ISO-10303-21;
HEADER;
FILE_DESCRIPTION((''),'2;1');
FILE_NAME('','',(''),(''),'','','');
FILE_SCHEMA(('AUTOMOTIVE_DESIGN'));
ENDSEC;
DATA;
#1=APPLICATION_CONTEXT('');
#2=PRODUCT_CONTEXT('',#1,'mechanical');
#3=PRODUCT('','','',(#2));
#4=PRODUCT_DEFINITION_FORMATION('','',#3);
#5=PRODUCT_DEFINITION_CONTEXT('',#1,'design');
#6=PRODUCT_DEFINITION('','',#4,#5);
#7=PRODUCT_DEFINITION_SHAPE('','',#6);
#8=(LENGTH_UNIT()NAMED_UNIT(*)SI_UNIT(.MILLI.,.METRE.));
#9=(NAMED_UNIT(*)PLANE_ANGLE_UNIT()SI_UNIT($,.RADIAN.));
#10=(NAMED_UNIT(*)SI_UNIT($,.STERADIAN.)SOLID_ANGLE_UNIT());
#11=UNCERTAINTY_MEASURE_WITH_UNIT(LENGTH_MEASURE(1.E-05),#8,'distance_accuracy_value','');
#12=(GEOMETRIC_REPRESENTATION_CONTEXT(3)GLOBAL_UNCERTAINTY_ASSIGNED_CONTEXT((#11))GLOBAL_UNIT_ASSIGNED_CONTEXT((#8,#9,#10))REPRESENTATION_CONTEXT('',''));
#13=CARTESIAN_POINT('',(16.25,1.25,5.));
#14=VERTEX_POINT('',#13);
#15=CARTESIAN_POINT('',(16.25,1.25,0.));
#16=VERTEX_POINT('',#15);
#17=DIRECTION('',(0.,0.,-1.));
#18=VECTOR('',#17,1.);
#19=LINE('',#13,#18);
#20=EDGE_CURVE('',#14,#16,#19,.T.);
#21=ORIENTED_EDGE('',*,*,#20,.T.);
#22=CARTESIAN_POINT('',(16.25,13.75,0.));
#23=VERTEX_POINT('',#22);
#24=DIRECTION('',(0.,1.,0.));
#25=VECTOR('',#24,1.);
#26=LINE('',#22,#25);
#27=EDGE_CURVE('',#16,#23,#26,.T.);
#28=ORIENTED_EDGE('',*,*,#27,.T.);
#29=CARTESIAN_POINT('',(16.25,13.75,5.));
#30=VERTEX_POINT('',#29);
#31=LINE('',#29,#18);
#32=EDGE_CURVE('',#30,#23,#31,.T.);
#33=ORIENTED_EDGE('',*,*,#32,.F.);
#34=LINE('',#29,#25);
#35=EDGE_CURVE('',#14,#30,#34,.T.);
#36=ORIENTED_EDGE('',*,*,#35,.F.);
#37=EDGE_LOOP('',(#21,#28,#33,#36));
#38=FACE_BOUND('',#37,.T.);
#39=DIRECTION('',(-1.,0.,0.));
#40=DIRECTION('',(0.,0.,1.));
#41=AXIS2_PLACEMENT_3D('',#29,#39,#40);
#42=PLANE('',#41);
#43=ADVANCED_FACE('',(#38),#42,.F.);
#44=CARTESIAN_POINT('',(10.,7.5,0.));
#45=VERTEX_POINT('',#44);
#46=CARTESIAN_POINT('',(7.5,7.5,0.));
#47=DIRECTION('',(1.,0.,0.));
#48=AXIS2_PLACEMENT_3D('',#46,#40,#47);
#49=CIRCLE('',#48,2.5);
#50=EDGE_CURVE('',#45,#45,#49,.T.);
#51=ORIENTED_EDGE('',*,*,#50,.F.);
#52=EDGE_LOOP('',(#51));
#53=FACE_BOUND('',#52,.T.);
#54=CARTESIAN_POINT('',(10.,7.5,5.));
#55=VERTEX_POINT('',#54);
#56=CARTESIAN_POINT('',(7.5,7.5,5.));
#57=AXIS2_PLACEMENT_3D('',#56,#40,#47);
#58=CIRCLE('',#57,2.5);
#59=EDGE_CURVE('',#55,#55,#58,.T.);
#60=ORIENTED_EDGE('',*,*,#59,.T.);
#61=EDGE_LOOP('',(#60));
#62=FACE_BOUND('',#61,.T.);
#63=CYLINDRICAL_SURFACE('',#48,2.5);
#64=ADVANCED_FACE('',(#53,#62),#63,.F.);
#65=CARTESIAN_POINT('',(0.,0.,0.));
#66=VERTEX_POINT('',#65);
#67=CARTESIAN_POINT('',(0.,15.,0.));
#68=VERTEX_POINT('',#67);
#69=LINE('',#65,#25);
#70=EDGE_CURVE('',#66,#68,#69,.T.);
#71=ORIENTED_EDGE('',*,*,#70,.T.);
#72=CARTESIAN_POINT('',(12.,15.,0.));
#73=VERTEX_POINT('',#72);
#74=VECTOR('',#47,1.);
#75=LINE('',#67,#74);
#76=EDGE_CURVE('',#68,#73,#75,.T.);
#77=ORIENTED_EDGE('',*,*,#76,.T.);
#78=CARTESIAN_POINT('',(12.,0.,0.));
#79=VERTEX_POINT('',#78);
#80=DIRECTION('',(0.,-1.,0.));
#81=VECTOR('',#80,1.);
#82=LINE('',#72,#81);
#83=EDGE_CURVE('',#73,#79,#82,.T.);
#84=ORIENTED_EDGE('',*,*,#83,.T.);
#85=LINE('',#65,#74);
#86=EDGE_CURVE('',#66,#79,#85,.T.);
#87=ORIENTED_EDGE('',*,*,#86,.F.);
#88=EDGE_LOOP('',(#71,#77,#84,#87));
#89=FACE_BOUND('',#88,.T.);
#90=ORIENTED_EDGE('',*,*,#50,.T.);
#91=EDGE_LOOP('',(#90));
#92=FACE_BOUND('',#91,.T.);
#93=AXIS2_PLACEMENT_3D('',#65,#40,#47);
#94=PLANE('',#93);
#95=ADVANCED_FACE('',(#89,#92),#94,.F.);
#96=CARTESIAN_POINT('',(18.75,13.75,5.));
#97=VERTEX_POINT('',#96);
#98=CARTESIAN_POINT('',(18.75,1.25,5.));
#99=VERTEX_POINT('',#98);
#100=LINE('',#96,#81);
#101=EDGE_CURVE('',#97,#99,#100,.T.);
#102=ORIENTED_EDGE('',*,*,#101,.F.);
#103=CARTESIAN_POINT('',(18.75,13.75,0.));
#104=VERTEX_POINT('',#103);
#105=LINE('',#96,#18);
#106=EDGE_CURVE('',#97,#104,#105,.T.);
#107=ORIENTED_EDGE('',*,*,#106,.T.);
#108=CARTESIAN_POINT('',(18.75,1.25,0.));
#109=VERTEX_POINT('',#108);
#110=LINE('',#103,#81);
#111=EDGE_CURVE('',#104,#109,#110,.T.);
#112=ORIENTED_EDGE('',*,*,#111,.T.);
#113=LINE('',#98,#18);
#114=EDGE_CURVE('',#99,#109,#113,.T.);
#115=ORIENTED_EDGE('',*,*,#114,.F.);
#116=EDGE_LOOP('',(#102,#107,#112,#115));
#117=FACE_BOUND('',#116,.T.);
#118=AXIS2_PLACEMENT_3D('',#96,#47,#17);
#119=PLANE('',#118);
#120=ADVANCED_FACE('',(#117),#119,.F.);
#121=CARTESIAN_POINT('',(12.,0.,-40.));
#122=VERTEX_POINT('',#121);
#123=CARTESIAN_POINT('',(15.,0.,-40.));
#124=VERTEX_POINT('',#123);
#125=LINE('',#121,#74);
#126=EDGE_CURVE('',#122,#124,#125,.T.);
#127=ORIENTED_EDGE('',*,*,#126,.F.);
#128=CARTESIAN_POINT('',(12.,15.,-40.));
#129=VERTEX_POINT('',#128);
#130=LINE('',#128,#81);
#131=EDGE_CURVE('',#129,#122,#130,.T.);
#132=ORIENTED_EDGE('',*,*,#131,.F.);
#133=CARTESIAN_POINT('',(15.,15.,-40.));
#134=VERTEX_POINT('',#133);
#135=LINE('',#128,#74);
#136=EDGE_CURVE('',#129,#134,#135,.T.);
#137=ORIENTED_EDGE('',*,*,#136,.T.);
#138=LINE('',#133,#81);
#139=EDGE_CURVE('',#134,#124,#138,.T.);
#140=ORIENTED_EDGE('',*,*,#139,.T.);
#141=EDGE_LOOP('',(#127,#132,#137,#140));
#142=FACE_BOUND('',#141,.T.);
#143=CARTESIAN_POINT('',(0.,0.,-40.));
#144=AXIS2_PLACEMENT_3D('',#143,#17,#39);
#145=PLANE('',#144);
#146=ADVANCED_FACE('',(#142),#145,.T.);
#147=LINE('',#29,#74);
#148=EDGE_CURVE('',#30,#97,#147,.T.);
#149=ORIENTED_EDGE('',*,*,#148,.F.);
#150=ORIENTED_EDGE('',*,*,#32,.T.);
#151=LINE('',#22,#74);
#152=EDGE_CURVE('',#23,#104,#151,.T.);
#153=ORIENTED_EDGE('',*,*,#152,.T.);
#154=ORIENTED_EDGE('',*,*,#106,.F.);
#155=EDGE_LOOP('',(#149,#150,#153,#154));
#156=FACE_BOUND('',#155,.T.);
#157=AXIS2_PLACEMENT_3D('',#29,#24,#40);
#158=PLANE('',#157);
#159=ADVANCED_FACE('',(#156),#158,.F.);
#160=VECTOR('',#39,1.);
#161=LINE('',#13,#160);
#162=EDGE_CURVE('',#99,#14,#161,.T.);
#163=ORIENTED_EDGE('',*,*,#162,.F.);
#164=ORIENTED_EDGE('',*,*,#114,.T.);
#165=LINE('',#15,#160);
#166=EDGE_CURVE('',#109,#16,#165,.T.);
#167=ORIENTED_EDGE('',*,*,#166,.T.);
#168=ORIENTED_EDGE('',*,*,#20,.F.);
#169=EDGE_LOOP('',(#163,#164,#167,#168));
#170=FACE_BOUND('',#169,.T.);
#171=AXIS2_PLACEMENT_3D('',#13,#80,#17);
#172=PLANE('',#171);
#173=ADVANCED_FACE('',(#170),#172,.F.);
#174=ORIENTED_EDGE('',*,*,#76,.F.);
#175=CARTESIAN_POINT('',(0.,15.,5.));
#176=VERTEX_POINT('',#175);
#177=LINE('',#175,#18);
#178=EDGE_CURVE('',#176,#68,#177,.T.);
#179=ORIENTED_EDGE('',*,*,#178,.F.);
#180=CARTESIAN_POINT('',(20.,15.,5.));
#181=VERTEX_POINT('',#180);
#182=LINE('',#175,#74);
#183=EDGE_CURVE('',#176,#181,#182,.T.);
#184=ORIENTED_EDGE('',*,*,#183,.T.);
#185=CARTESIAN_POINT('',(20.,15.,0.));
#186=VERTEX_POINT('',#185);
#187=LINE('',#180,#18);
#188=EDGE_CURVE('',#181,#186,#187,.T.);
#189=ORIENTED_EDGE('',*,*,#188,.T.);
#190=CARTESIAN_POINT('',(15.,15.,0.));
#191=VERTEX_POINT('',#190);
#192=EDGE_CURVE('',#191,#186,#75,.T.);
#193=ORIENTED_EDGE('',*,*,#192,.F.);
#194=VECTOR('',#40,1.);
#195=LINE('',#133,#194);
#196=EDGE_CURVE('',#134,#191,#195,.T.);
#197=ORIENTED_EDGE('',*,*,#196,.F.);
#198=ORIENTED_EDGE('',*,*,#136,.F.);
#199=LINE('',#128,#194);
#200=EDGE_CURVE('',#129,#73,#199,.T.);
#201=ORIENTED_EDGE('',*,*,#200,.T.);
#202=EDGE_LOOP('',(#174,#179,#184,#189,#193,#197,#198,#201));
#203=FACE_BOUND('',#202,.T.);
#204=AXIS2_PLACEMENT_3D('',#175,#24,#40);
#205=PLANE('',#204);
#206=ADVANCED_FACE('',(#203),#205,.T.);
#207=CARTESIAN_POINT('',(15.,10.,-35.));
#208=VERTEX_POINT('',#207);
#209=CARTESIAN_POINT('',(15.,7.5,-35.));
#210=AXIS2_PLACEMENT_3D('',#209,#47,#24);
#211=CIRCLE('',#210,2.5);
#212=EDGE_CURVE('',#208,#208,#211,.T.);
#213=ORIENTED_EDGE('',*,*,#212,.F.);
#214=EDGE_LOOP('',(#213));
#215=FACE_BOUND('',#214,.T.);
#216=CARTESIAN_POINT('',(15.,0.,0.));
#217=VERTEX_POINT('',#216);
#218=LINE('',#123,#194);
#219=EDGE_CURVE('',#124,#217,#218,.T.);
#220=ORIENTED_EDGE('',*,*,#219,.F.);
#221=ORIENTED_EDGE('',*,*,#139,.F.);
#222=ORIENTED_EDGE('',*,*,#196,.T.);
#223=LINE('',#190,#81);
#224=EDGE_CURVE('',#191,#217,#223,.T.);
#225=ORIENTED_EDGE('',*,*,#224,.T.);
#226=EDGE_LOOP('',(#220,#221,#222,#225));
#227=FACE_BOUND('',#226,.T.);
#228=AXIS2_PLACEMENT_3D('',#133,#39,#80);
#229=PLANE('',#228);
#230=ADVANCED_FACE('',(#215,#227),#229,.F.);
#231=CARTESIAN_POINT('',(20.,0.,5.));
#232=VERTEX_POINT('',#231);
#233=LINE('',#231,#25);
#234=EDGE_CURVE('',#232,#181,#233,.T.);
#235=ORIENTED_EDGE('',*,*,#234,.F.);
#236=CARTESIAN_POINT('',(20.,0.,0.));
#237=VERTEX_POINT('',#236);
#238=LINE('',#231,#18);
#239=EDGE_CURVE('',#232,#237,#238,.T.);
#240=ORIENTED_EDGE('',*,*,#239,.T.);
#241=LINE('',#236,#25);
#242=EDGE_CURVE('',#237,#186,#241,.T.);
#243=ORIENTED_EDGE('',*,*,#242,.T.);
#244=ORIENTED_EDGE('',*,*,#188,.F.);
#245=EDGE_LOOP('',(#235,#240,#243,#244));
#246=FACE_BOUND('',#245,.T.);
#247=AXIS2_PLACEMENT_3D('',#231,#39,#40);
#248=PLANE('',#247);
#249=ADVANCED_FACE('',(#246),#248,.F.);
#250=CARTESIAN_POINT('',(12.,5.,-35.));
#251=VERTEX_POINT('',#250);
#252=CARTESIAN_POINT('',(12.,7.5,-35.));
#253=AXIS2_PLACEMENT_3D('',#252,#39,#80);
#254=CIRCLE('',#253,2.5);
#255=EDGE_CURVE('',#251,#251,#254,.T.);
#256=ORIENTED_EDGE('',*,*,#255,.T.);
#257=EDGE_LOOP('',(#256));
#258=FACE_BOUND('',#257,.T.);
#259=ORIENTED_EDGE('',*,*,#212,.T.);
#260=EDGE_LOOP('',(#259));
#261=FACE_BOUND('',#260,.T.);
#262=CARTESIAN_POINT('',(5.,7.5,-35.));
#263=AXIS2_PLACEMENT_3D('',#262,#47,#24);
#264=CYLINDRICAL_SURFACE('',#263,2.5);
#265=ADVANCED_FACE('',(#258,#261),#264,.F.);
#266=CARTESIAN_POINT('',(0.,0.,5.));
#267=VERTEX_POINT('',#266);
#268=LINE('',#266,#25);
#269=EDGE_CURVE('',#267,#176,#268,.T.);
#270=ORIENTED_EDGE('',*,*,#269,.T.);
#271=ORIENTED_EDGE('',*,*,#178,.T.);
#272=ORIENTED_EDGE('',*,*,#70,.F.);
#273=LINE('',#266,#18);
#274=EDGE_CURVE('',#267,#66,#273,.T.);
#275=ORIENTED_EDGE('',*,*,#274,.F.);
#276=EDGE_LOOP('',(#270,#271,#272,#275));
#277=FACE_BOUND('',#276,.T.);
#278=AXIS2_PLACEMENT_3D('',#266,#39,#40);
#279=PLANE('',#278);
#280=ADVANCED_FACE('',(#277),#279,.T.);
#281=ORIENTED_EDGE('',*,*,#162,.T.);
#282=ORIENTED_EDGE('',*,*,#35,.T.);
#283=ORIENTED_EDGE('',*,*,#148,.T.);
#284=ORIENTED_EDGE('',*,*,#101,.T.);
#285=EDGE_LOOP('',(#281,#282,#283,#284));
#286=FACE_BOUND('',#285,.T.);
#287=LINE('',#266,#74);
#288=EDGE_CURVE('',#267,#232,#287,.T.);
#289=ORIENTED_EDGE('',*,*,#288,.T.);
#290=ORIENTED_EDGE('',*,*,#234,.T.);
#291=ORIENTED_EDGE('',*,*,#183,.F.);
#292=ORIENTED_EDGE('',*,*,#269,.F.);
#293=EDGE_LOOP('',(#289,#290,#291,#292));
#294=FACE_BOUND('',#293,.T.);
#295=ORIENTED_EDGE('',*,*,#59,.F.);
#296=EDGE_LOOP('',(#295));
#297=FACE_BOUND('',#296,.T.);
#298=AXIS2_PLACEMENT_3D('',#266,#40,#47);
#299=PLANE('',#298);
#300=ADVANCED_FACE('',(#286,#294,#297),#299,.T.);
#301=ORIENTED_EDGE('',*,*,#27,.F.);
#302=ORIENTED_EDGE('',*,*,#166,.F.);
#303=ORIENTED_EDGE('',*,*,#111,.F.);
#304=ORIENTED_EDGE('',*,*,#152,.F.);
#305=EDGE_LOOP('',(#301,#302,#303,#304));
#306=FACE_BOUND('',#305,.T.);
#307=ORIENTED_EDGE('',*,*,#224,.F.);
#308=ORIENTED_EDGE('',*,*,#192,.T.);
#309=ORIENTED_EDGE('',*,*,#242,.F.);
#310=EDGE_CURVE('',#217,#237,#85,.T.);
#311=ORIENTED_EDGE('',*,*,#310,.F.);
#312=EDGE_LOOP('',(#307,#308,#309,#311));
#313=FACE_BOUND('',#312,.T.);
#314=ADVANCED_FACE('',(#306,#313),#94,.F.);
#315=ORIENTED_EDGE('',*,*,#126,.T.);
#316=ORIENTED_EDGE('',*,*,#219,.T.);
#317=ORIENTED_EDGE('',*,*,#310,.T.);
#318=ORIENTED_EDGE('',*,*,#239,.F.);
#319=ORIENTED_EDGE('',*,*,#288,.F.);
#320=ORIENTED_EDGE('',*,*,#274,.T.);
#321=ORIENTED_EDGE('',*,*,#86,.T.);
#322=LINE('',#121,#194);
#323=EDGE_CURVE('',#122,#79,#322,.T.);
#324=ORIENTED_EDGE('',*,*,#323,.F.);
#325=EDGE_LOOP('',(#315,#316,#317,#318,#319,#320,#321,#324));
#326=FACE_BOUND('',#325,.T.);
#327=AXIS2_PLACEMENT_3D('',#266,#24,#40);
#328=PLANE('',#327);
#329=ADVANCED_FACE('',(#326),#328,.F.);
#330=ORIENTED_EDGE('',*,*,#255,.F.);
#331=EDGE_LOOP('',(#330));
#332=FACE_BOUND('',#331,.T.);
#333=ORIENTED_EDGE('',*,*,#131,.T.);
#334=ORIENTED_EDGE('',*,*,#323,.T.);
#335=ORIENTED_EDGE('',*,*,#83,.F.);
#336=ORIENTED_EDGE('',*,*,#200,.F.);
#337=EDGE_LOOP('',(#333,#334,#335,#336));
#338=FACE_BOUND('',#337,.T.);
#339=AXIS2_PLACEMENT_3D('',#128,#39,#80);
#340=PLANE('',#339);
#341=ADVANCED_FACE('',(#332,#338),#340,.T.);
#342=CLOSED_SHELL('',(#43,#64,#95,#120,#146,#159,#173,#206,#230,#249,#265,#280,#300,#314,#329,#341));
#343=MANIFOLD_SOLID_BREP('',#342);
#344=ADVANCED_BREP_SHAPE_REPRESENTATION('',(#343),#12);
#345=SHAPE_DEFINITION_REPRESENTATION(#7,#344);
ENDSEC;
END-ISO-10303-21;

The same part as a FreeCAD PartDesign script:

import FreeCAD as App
import Part
import Sketcher
Q = App.Units.Quantity


def add_polygon(sketch, points):
    """Adds a closed chain of lines whose ends are joined by coincident constraints."""
    first, n = sketch.GeometryCount, len(points)
    for a, b in zip(points, points[1:] + points[:1]):
        sketch.addGeometry(Part.LineSegment(App.Vector(*a, 0), App.Vector(*b, 0)), False)
    for i in range(n):
        sketch.addConstraint(Sketcher.Constraint("Coincident", first + i, 2, first + (i + 1) % n, 1))

doc = App.newDocument("Part")
body = doc.addObject("PartDesign::Body", "Body")

sketch1 = doc.addObject("Sketcher::SketchObject", "Sketch")
body.addObject(sketch1)
sketch1.AttachmentSupport = (doc.XY_Plane, [""])
sketch1.MapMode = "FlatFace"
add_polygon(sketch1, [(0, 15), (0, 0), (20, 0), (20, 15)])
sketch1.addConstraint([
    Sketcher.Constraint("Vertical", 0),
    Sketcher.Constraint("Horizontal", 1),
    Sketcher.Constraint("Vertical", 2),
    Sketcher.Constraint("Horizontal", 3),
    Sketcher.Constraint("Coincident", 0, 2, -1, 1),
    Sketcher.Constraint("DistanceX", 1, 1, 1, 2, Q("20 mm")),
    Sketcher.Constraint("DistanceY", 0, 2, 0, 1, Q("15 mm")),
])
pad1 = doc.addObject("PartDesign::Pad", "Pad")
body.addObject(pad1)
pad1.Profile = sketch1
pad1.Length = 5

sketch2 = doc.addObject("Sketcher::SketchObject", "Sketch001")
body.addObject(sketch2)
sketch2.AttachmentSupport = (doc.XY_Plane, [""])
sketch2.MapMode = "FlatFace"
sketch2.AttachmentOffset = App.Placement(App.Vector(0, 0, 5), App.Rotation())
sketch2.addGeometry(Part.Circle(App.Vector(7.5, 7.5, 0), App.Vector(0, 0, 1), 2.5), False)
sketch2.addConstraint([
    Sketcher.Constraint("Diameter", 0, Q("5 mm")),
    Sketcher.Constraint("DistanceX", -1, 1, 0, 3, Q("7.5 mm")),
    Sketcher.Constraint("DistanceY", -1, 1, 0, 3, Q("7.5 mm")),
])
pocket1 = doc.addObject("PartDesign::Pocket", "Pocket")
body.addObject(pocket1)
pocket1.Profile = sketch2
pocket1.Length = 5

sketch3 = doc.addObject("Sketcher::SketchObject", "Sketch002")
body.addObject(sketch3)
sketch3.AttachmentSupport = (doc.XY_Plane, [""])
sketch3.MapMode = "FlatFace"
add_polygon(sketch3, [(15, 15), (15, 0), (12, 0), (12, 15)])
sketch3.addConstraint([
    Sketcher.Constraint("Vertical", 0),
    Sketcher.Constraint("Horizontal", 1),
    Sketcher.Constraint("Vertical", 2),
    Sketcher.Constraint("Horizontal", 3),
    Sketcher.Constraint("PointOnObject", 0, 2, -1),
    Sketcher.Constraint("DistanceX", 1, 2, 1, 1, Q("3 mm")),
    Sketcher.Constraint("DistanceY", 0, 2, 0, 1, Q("15 mm")),
    Sketcher.Constraint("DistanceX", -1, 1, 0, 2, Q("15 mm")),
])
pad2 = doc.addObject("PartDesign::Pad", "Pad001")
body.addObject(pad2)
pad2.Profile = sketch3
pad2.Length = 40
pad2.Reversed = True

sketch4 = doc.addObject("Sketcher::SketchObject", "Sketch003")
body.addObject(sketch4)
sketch4.AttachmentSupport = (doc.XY_Plane, [""])
sketch4.MapMode = "FlatFace"
add_polygon(sketch4, [(18.75, 13.75), (18.75, 1.25), (16.25, 1.25), (16.25, 13.75)])
sketch4.addConstraint([
    Sketcher.Constraint("Vertical", 0),
    Sketcher.Constraint("Horizontal", 1),
    Sketcher.Constraint("Vertical", 2),
    Sketcher.Constraint("Horizontal", 3),
    Sketcher.Constraint("DistanceX", 1, 2, 1, 1, Q("2.5 mm")),
    Sketcher.Constraint("DistanceY", 0, 2, 0, 1, Q("12.5 mm")),
    Sketcher.Constraint("DistanceX", -1, 1, 0, 2, Q("18.75 mm")),
    Sketcher.Constraint("DistanceY", -1, 1, 0, 2, Q("1.25 mm")),
])
pocket2 = doc.addObject("PartDesign::Pocket", "Pocket001")
body.addObject(pocket2)
pocket2.Profile = sketch4
pocket2.Type = "ThroughAll"
pocket2.Reversed = True

sketch5 = doc.addObject("Sketcher::SketchObject", "Sketch004")
body.addObject(sketch5)
sketch5.AttachmentSupport = (doc.YZ_Plane, [""])
sketch5.MapMode = "FlatFace"
sketch5.AttachmentOffset = App.Placement(App.Vector(0, 0, 15), App.Rotation())
sketch5.addGeometry(Part.Circle(App.Vector(7.5, -35, 0), App.Vector(0, 0, 1), 2.5), False)
sketch5.addConstraint([
    Sketcher.Constraint("Diameter", 0, Q("5 mm")),
    Sketcher.Constraint("DistanceY", 0, 3, -1, 1, Q("35 mm")),
    Sketcher.Constraint("DistanceX", -1, 1, 0, 3, Q("7.5 mm")),
])
pocket3 = doc.addObject("PartDesign::Pocket", "Pocket002")
body.addObject(pocket3)
pocket3.Profile = sketch5
pocket3.Length = 10

doc.recompute()
